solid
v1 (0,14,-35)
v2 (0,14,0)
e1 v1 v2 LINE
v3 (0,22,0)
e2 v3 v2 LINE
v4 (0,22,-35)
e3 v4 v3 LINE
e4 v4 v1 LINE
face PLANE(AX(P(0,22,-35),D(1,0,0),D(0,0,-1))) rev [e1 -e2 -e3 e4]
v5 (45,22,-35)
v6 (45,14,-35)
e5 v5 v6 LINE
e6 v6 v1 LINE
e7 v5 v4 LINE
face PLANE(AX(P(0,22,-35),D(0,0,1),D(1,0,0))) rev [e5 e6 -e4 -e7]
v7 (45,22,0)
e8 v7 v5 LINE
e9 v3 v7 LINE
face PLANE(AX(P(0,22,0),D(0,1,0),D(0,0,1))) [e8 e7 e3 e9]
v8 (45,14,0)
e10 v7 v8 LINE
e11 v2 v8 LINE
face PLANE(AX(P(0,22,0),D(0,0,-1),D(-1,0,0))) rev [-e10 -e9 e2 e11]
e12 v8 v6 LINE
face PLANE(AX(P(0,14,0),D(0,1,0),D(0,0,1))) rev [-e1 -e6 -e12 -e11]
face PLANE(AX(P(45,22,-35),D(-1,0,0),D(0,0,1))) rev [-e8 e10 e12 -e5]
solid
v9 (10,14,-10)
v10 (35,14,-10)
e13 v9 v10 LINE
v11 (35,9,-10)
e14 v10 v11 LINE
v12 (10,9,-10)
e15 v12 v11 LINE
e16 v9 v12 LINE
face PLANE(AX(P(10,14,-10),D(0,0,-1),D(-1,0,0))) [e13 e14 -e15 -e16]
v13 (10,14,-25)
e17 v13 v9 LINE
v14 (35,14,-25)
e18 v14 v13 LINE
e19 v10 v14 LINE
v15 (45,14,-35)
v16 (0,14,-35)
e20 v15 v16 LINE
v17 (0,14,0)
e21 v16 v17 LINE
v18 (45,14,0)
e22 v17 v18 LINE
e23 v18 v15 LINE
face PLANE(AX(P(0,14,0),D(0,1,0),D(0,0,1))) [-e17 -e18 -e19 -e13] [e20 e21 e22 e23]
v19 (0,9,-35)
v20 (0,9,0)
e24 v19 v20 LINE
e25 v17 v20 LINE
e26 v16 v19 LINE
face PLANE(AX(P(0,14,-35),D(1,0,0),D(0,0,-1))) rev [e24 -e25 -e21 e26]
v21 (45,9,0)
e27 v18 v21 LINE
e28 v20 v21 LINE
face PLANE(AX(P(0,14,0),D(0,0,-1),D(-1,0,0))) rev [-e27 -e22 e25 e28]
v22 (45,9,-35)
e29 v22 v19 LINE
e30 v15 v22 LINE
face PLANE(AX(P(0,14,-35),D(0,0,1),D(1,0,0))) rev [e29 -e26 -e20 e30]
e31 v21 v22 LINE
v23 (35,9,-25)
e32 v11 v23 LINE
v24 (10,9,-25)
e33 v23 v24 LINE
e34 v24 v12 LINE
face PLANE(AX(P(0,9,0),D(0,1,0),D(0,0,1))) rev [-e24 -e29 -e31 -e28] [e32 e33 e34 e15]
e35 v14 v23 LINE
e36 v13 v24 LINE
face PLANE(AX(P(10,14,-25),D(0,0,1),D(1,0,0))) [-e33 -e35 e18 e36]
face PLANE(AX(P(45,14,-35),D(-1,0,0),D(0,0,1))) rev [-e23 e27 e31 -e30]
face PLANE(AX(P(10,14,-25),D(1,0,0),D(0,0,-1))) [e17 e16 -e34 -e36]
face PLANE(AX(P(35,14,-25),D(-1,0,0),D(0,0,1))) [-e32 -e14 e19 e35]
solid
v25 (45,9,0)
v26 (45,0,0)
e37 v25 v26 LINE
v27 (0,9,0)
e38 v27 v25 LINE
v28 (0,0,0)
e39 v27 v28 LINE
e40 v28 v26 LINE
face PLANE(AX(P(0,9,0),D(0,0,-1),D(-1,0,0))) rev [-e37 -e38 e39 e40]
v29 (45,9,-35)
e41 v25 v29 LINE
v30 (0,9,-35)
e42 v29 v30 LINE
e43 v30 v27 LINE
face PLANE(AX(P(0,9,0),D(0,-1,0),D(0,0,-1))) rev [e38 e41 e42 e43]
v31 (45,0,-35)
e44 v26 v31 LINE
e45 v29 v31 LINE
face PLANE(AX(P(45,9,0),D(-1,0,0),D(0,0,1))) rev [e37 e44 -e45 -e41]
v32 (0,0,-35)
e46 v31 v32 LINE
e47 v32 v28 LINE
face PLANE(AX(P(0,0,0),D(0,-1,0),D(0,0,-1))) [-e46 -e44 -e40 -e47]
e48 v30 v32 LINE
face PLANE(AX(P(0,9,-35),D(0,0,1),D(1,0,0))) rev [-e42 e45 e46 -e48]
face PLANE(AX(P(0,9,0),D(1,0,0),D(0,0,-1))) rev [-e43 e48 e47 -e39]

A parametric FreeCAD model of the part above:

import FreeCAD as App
import Part
import Sketcher
Q = App.Units.Quantity

doc = App.newDocument("Part")
params = doc.addObject("Spreadsheet::Sheet", "Params")
for row, (alias, value) in enumerate([
    ("sketch1_width", "45 mm"),
    ("sketch1_height", "35 mm"),
    ("pad1_length", "9 mm"),
    ("sketch2_width", "45 mm"),
    ("sketch2_width2", "25 mm"),
    ("sketch2_height", "35 mm"),
    ("sketch2_height2", "15 mm"),
    ("pad2_length", "5 mm"),
    ("sketch3_width", "45 mm"),
    ("sketch3_height", "35 mm"),
    ("pad3_length", "8 mm"),
], start=1):
    params.set(f"A{row}", alias)
    params.set(f"B{row}", "=" + value)
    params.setAlias(f"B{row}", alias)

body = doc.addObject("PartDesign::Body", "Body")

sketch1 = doc.addObject("Sketcher::SketchObject", "Sketch")
body.addObject(sketch1)
sketch1.AttachmentSupport = (doc.XZ_Plane, [""])
sketch1.MapMode = "FlatFace"
sketch1.addGeometry(Part.LineSegment(App.Vector(0, -35, 0), App.Vector(0, 0, 0)), False)
sketch1.addGeometry(Part.LineSegment(App.Vector(0, 0, 0), App.Vector(45, 0, 0)), False)
sketch1.addGeometry(Part.LineSegment(App.Vector(45, 0, 0), App.Vector(45, -35, 0)), False)
sketch1.addGeometry(Part.LineSegment(App.Vector(45, -35, 0), App.Vector(0, -35, 0)), False)
sketch1.addConstraint(Sketcher.Constraint("Coincident", 0, 2, 1, 1))
sketch1.addConstraint(Sketcher.Constraint("Coincident", 1, 2, 2, 1))
sketch1.addConstraint(Sketcher.Constraint("Coincident", 2, 2, 3, 1))
sketch1.addConstraint(Sketcher.Constraint("Coincident", 3, 2, 0, 1))
sketch1.addConstraint(Sketcher.Constraint("Vertical", 0))
sketch1.addConstraint(Sketcher.Constraint("Horizontal", 1))
sketch1.addConstraint(Sketcher.Constraint("Vertical", 2))
sketch1.addConstraint(Sketcher.Constraint("Horizontal", 3))
sketch1.addConstraint(Sketcher.Constraint("Coincident", 0, 2, -1, 1))
sketch1.addConstraint(Sketcher.Constraint("DistanceX", 1, 1, 1, 2, Q("45 mm")))
sketch1.addConstraint(Sketcher.Constraint("DistanceY", 0, 1, 0, 2, Q("35 mm")))
sketch1.setExpression("Constraints[9]", "Params.sketch1_width")
sketch1.setExpression("Constraints[10]", "Params.sketch1_height")
pad1 = doc.addObject("PartDesign::Pad", "Pad")
body.addObject(pad1)
pad1.Profile = sketch1
pad1.setExpression("Length", "Params.pad1_length")
pad1.Reversed = True
body2 = doc.addObject("PartDesign::Body", "Body001")

sketch2 = doc.addObject("Sketcher::SketchObject", "Sketch001")
body2.addObject(sketch2)
sketch2.AttachmentSupport = (doc.getObject("XZ_Plane001"), [""])
sketch2.MapMode = "FlatFace"
sketch2.AttachmentOffset = App.Placement(App.Vector(0, 0, -9), App.Rotation())
sketch2.addGeometry(Part.LineSegment(App.Vector(0, -35, 0), App.Vector(0, 0, 0)), False)
sketch2.addGeometry(Part.LineSegment(App.Vector(0, 0, 0), App.Vector(45, 0, 0)), False)
sketch2.addGeometry(Part.LineSegment(App.Vector(45, 0, 0), App.Vector(45, -35, 0)), False)
sketch2.addGeometry(Part.LineSegment(App.Vector(45, -35, 0), App.Vector(0, -35, 0)), False)
sketch2.addGeometry(Part.LineSegment(App.Vector(35, -10, 0), App.Vector(10, -10, 0)), False)
sketch2.addGeometry(Part.LineSegment(App.Vector(10, -10, 0), App.Vector(10, -25, 0)), False)
sketch2.addGeometry(Part.LineSegment(App.Vector(10, -25, 0), App.Vector(35, -25, 0)), False)
sketch2.addGeometry(Part.LineSegment(App.Vector(35, -25, 0), App.Vector(35, -10, 0)), False)
sketch2.addConstraint(Sketcher.Constraint("Coincident", 0, 2, 1, 1))
sketch2.addConstraint(Sketcher.Constraint("Coincident", 1, 2, 2, 1))
sketch2.addConstraint(Sketcher.Constraint("Coincident", 2, 2, 3, 1))
sketch2.addConstraint(Sketcher.Constraint("Coincident", 3, 2, 0, 1))
sketch2.addConstraint(Sketcher.Constraint("Coincident", 4, 2, 5, 1))
sketch2.addConstraint(Sketcher.Constraint("Coincident", 5, 2, 6, 1))
sketch2.addConstraint(Sketcher.Constraint("Coincident", 6, 2, 7, 1))
sketch2.addConstraint(Sketcher.Constraint("Coincident", 7, 2, 4, 1))
sketch2.addConstraint(Sketcher.Constraint("Vertical", 0))
sketch2.addConstraint(Sketcher.Constraint("Horizontal", 1))
sketch2.addConstraint(Sketcher.Constraint("Vertical", 2))
sketch2.addConstraint(Sketcher.Constraint("Horizontal", 3))
sketch2.addConstraint(Sketcher.Constraint("Horizontal", 4))
sketch2.addConstraint(Sketcher.Constraint("Vertical", 5))
sketch2.addConstraint(Sketcher.Constraint("Horizontal", 6))
sketch2.addConstraint(Sketcher.Constraint("Vertical", 7))
sketch2.addConstraint(Sketcher.Constraint("Coincident", 0, 2, -1, 1))
sketch2.addConstraint(Sketcher.Constraint("DistanceX", 1, 1, 1, 2, Q("45 mm")))
sketch2.addConstraint(Sketcher.Constraint("DistanceX", 4, 2, 4, 1, Q("25 mm")))
sketch2.addConstraint(Sketcher.Constraint("DistanceY", 0, 1, 0, 2, Q("35 mm")))
sketch2.addConstraint(Sketcher.Constraint("DistanceY", 5, 2, 5, 1, Q("15 mm")))
sketch2.addConstraint(Sketcher.Constraint("DistanceX", -1, 1, 4, 2, Q("10 mm")))
sketch2.addConstraint(Sketcher.Constraint("DistanceY", 4, 2, -1, 1, Q("10 mm")))
sketch2.setExpression("Constraints[17]", "Params.sketch2_width")
sketch2.setExpression("Constraints[18]", "Params.sketch2_width2")
sketch2.setExpression("Constraints[19]", "Params.sketch2_height")
sketch2.setExpression("Constraints[20]", "Params.sketch2_height2")
pad2 = doc.addObject("PartDesign::Pad", "Pad001")
body2.addObject(pad2)
pad2.Profile = sketch2
pad2.setExpression("Length", "Params.pad2_length")
pad2.Reversed = True
body3 = doc.addObject("PartDesign::Body", "Body002")

sketch3 = doc.addObject("Sketcher::SketchObject", "Sketch002")
body3.addObject(sketch3)
sketch3.AttachmentSupport = (doc.getObject("XZ_Plane002"), [""])
sketch3.MapMode = "FlatFace"
sketch3.AttachmentOffset = App.Placement(App.Vector(0, 0, -14), App.Rotation())
sketch3.addGeometry(Part.LineSegment(App.Vector(0, -35, 0), App.Vector(0, 0, 0)), False)
sketch3.addGeometry(Part.LineSegment(App.Vector(0, 0, 0), App.Vector(45, 0, 0)), False)
sketch3.addGeometry(Part.LineSegment(App.Vector(45, 0, 0), App.Vector(45, -35, 0)), False)
sketch3.addGeometry(Part.LineSegment(App.Vector(45, -35, 0), App.Vector(0, -35, 0)), False)
sketch3.addConstraint(Sketcher.Constraint("Coincident", 0, 2, 1, 1))
sketch3.addConstraint(Sketcher.Constraint("Coincident", 1, 2, 2, 1))
sketch3.addConstraint(Sketcher.Constraint("Coincident", 2, 2, 3, 1))
sketch3.addConstraint(Sketcher.Constraint("Coincident", 3, 2, 0, 1))
sketch3.addConstraint(Sketcher.Constraint("Vertical", 0))
sketch3.addConstraint(Sketcher.Constraint("Horizontal", 1))
sketch3.addConstraint(Sketcher.Constraint("Vertical", 2))
sketch3.addConstraint(Sketcher.Constraint("Horizontal", 3))
sketch3.addConstraint(Sketcher.Constraint("Coincident", 0, 2, -1, 1))
sketch3.addConstraint(Sketcher.Constraint("DistanceX", 1, 1, 1, 2, Q("45 mm")))
sketch3.addConstraint(Sketcher.Constraint("DistanceY", 0, 1, 0, 2, Q("35 mm")))
sketch3.setExpression("Constraints[9]", "Params.sketch3_width")
sketch3.setExpression("Constraints[10]", "Params.sketch3_height")
pad3 = doc.addObject("PartDesign::Pad", "Pad002")
body3.addObject(pad3)
pad3.Profile = sketch3
pad3.setExpression("Length", "Params.pad3_length")
pad3.Reversed = True

doc.recompute()
